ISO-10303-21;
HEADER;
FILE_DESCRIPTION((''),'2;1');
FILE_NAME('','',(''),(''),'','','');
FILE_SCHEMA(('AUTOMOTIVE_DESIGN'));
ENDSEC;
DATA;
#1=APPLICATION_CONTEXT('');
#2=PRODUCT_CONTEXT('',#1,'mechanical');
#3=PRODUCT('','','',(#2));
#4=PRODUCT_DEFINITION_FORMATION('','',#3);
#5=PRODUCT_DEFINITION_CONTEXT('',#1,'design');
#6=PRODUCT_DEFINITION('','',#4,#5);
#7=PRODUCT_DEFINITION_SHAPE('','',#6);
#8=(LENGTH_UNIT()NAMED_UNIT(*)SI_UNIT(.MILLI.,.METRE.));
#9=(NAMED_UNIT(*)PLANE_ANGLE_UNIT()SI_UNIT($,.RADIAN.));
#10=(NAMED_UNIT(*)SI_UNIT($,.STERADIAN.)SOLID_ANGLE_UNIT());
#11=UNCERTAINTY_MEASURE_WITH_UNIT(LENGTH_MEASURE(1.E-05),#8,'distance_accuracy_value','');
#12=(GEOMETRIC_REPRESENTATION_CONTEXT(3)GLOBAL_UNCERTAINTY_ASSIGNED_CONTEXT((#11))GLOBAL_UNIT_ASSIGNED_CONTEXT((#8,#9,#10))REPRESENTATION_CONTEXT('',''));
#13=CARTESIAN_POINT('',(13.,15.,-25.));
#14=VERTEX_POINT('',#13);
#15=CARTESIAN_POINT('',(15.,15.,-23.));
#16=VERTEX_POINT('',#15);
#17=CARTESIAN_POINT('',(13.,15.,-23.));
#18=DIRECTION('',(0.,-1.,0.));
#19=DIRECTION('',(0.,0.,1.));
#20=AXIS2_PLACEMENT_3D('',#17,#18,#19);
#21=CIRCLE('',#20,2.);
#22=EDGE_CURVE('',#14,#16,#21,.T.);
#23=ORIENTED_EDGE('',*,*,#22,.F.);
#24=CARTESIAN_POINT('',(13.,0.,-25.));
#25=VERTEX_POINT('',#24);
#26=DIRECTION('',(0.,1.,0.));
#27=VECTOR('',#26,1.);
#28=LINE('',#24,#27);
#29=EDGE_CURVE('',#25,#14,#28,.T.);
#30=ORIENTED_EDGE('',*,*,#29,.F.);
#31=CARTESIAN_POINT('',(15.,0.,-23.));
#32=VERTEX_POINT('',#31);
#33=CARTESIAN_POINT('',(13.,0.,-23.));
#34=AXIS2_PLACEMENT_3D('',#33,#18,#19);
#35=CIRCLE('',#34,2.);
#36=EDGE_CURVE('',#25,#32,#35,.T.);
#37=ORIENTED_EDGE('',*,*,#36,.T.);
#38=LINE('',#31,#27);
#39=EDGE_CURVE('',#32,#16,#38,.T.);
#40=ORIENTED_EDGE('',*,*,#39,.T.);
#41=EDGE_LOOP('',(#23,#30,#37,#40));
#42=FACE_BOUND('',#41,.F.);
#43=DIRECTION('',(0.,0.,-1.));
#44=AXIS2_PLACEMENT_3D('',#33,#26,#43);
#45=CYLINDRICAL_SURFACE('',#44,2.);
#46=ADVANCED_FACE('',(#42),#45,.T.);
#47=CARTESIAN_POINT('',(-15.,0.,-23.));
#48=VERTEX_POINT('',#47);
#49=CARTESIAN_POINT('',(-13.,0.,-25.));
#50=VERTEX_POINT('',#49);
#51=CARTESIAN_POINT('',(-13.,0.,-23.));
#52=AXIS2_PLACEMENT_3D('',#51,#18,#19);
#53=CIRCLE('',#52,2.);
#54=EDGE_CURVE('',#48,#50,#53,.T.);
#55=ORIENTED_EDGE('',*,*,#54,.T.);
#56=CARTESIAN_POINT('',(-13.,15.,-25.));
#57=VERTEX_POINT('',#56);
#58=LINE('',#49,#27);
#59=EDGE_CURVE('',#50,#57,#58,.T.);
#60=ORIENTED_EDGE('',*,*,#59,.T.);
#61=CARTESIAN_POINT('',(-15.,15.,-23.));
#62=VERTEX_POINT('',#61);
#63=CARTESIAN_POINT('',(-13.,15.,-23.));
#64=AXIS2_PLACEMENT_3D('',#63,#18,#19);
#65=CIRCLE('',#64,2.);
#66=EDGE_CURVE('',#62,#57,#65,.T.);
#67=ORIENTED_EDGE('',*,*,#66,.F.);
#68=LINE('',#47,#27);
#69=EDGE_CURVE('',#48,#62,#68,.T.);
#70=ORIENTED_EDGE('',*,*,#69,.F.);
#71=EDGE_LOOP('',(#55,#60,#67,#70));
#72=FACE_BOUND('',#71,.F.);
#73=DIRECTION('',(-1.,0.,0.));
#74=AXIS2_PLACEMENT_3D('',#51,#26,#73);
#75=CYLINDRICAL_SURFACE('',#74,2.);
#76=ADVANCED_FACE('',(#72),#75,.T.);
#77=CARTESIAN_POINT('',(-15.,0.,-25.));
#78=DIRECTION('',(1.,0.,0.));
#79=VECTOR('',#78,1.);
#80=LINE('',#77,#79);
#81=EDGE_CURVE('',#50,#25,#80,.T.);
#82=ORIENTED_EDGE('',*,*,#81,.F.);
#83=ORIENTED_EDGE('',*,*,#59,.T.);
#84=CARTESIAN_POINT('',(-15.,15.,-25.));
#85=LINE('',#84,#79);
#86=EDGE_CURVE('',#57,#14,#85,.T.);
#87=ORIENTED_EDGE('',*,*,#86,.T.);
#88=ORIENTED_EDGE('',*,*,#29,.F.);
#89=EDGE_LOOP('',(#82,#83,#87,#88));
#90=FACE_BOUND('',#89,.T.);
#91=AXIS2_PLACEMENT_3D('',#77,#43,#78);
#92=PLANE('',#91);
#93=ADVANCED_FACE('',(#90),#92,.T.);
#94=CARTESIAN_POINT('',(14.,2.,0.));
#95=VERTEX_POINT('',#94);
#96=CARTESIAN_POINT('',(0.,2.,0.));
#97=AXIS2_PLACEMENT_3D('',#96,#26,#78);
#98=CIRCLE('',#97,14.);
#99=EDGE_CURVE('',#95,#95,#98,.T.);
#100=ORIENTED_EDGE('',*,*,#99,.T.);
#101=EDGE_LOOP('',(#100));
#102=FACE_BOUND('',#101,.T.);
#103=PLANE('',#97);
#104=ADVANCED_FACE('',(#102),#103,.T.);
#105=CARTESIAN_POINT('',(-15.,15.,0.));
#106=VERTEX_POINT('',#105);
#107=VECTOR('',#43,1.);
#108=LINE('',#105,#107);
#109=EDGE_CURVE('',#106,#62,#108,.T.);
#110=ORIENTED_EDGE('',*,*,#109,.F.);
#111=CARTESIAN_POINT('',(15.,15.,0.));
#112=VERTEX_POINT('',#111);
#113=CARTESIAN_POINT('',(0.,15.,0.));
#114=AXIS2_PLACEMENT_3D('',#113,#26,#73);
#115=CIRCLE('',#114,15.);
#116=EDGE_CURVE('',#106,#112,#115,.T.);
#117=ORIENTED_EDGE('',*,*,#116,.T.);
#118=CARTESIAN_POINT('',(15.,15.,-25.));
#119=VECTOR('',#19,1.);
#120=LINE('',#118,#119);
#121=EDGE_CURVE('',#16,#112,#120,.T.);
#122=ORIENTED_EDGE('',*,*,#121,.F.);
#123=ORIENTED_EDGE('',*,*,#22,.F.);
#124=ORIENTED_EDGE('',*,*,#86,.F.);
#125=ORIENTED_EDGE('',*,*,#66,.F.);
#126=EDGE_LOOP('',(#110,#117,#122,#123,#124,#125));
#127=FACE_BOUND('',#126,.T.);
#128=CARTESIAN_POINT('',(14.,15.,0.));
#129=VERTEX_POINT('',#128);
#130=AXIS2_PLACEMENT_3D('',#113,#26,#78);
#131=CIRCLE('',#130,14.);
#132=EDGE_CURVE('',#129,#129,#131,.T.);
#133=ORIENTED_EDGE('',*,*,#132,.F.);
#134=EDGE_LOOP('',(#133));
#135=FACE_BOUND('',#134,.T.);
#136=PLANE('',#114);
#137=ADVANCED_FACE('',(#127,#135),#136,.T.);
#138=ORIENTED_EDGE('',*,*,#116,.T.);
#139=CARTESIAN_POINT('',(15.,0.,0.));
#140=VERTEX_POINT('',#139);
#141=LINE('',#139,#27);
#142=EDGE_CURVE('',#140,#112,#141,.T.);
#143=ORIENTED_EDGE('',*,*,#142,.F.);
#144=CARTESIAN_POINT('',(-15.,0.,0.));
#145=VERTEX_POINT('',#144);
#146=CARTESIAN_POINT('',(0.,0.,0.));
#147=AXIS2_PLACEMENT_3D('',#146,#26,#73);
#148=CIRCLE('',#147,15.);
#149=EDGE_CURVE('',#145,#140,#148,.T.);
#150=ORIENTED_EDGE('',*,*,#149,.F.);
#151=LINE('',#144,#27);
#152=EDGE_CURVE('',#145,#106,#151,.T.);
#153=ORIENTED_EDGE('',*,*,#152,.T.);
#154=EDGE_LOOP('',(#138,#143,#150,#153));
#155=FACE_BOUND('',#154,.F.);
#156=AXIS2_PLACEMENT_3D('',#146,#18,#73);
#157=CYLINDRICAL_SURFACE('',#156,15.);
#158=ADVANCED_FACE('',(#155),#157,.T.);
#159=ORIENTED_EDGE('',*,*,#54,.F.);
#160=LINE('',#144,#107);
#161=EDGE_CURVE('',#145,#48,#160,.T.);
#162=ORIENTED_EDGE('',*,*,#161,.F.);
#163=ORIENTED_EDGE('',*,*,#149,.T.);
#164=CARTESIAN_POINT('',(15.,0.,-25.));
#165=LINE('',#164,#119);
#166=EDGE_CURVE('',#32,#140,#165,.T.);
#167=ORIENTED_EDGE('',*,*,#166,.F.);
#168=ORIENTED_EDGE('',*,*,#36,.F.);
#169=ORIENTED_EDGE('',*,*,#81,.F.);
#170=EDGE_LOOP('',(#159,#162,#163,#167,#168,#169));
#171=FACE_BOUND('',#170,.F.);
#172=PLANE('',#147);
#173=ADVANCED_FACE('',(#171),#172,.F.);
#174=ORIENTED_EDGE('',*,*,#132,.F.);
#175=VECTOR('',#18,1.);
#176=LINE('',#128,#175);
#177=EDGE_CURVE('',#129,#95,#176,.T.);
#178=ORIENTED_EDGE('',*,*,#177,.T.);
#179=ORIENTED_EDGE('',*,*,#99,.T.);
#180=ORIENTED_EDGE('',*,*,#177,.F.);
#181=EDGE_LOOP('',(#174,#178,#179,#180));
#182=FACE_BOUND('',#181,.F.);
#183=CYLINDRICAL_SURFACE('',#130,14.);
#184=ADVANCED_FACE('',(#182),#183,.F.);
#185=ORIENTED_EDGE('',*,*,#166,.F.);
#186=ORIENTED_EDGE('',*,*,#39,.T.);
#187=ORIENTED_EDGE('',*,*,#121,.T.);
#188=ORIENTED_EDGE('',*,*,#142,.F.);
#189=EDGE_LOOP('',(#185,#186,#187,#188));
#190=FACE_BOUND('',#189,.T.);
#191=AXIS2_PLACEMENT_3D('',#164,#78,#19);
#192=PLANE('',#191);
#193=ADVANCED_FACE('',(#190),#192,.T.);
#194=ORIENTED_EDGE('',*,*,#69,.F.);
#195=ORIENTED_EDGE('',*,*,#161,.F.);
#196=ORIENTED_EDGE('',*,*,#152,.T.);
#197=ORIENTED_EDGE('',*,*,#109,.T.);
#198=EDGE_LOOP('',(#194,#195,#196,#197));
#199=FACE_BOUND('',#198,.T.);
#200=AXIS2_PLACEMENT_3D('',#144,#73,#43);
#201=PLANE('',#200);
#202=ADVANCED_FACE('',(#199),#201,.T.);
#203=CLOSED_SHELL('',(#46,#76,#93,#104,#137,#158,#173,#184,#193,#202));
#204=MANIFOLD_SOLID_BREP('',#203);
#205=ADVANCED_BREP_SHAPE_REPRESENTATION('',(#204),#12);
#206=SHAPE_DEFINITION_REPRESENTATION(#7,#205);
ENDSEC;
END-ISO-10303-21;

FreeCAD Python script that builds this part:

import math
import FreeCAD as App
import Part
import Sketcher


def edges_at(feature, points):
    """Names of the edges that pass closest to the given points."""
    edges = feature.Shape.Edges
    near = lambda p: min(range(len(edges)), key=lambda i: edges[i].distToShape(Part.Vertex(*p))[0])
    return sorted({f"Edge{near(p) + 1}" for p in points})

doc = App.newDocument("Part")
body = doc.addObject("PartDesign::Body", "Body")

# Sketch on XZ plane
sketch1 = doc.addObject("Sketcher::SketchObject", "Sketch")
body.addObject(sketch1)
sketch1.AttachmentSupport = (doc.XZ_Plane, [""])
sketch1.MapMode = "FlatFace"
sketch1.addGeometry(Part.LineSegment(App.Vector(-15, -25, 0), App.Vector(-15, 0, 0)), False)
sketch1.addGeometry(Part.ArcOfCircle(Part.Circle(App.Vector(0, 0, 0), App.Vector(0, 0, 1), 15), math.radians(0), math.radians(180)), False)
sketch1.addGeometry(Part.LineSegment(App.Vector(15, 0, 0), App.Vector(15, -25, 0)), False)
sketch1.addGeometry(Part.LineSegment(App.Vector(15, -25, 0), App.Vector(-15, -25, 0)), False)
sketch1.addConstraint(Sketcher.Constraint("Tangent", 0, 2, 1, 2))
sketch1.addConstraint(Sketcher.Constraint("Tangent", 1, 1, 2, 1))
sketch1.addConstraint(Sketcher.Constraint("Coincident", 2, 2, 3, 1))
sketch1.addConstraint(Sketcher.Constraint("Coincident", 3, 2, 0, 1))
sketch1.addConstraint(Sketcher.Constraint("Vertical", 0))
sketch1.addConstraint(Sketcher.Constraint("Vertical", 2))
sketch1.addConstraint(Sketcher.Constraint("Horizontal", 3))
sketch1.addConstraint(Sketcher.Constraint("Coincident", 1, 3, -1, 1))
sketch1.addConstraint(Sketcher.Constraint("Radius", 1, 15.0))
sketch1.addConstraint(Sketcher.Constraint("DistanceY", 0, 1, 0, 2, 25.0))
pad1 = doc.addObject("PartDesign::Pad", "Pad")
body.addObject(pad1)
pad1.Profile = sketch1
pad1.Length = 15
pad1.Reversed = True

# Sketch on XZ plane
sketch2 = doc.addObject("Sketcher::SketchObject", "Sketch001")
body.addObject(sketch2)
sketch2.AttachmentSupport = (doc.XZ_Plane, [""])
sketch2.MapMode = "FlatFace"
sketch2.AttachmentOffset = App.Placement(App.Vector(0, 0, -15), App.Rotation())
sketch2.addGeometry(Part.Circle(App.Vector(0, 0, 0), App.Vector(0, 0, 1), 14), False)
sketch2.addConstraint(Sketcher.Constraint("Coincident", 0, 3, -1, 1))
sketch2.addConstraint(Sketcher.Constraint("Diameter", 0, 28.0))
pocket1 = doc.addObject("PartDesign::Pocket", "Pocket")
body.addObject(pocket1)
pocket1.Profile = sketch2
pocket1.Length = 13
pocket1.Reversed = True
doc.recompute()

fillet = doc.addObject("PartDesign::Fillet", "Fillet")
body.addObject(fillet)
fillet.Base = (pocket1, edges_at(pocket1, [(-15, 7.5, -25), (15, 7.5, -25)]))
fillet.Radius = 2

doc.recompute()
